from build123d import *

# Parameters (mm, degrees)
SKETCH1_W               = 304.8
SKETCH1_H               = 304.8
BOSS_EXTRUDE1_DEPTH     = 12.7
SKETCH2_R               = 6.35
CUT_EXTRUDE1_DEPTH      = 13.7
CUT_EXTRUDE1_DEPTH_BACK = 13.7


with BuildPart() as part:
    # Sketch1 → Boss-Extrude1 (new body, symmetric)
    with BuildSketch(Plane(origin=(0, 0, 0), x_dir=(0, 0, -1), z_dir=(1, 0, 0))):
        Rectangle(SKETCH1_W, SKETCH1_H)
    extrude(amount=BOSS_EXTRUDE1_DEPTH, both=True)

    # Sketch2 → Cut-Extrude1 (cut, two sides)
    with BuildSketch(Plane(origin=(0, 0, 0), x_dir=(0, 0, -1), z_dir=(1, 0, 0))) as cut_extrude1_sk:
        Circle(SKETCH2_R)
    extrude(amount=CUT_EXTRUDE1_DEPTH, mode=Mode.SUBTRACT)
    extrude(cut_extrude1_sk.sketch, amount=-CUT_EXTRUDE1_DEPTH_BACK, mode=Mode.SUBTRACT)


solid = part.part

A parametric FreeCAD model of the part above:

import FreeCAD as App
import Part
import Sketcher
from FreeCAD import Vector
Q = App.Units.Quantity

doc = App.newDocument("Part")
body = doc.addObject("PartDesign::Body", "Body")

sketch1 = body.newObject("Sketcher::SketchObject", "Sketch")
sketch1.AttachmentSupport = (doc.getObject("YZ_Plane"), [""])
sketch1.MapMode = "FlatFace"
sketch1.addGeometry([
    Part.LineSegment(Vector(152, 152, 0), Vector(-152, 152, 0)),
    Part.LineSegment(Vector(-152, 152, 0), Vector(-152, -152, 0)),
    Part.LineSegment(Vector(-152, -152, 0), Vector(152, -152, 0)),
    Part.LineSegment(Vector(152, -152, 0), Vector(152, 152, 0)),
], False)
sketch1.addConstraint([
    Sketcher.Constraint("Coincident", 0, 2, 1, 1),
    Sketcher.Constraint("Coincident", 1, 2, 2, 1),
    Sketcher.Constraint("Coincident", 2, 2, 3, 1),
    Sketcher.Constraint("Coincident", 3, 2, 0, 1),
    Sketcher.Constraint("Horizontal", 0),
    Sketcher.Constraint("Vertical", 1),
    Sketcher.Constraint("Horizontal", 2),
    Sketcher.Constraint("Vertical", 3),
    Sketcher.Constraint("Symmetric", 0, 2, 2, 2, -1, 1),
    Sketcher.Constraint("Equal", 2, 1),
    Sketcher.Constraint("DistanceX", 0, 2, 0, 1, Q("12 in")),
])
pad1 = body.newObject("PartDesign::Pad", "Pad")
pad1.Profile = sketch1
pad1.Length = Q("1 in")
pad1.Midplane = True

sketch2 = body.newObject("Sketcher::SketchObject", "Sketch001")
sketch2.AttachmentSupport = (doc.getObject("YZ_Plane"), [""])
sketch2.MapMode = "FlatFace"
sketch2.addGeometry(Part.Circle(Vector(0, 0, 0), Vector(0, 0, 1), 6), False)
sketch2.addConstraint([
    Sketcher.Constraint("Coincident", 0, 3, -1, 1),
    Sketcher.Constraint("Diameter", 0, Q("0.5 in")),
])
pocket1 = body.newObject("PartDesign::Pocket", "Pocket")
pocket1.Profile = sketch2
pocket1.Type = "ThroughAll"
pocket1.Midplane = True

doc.recompute()
